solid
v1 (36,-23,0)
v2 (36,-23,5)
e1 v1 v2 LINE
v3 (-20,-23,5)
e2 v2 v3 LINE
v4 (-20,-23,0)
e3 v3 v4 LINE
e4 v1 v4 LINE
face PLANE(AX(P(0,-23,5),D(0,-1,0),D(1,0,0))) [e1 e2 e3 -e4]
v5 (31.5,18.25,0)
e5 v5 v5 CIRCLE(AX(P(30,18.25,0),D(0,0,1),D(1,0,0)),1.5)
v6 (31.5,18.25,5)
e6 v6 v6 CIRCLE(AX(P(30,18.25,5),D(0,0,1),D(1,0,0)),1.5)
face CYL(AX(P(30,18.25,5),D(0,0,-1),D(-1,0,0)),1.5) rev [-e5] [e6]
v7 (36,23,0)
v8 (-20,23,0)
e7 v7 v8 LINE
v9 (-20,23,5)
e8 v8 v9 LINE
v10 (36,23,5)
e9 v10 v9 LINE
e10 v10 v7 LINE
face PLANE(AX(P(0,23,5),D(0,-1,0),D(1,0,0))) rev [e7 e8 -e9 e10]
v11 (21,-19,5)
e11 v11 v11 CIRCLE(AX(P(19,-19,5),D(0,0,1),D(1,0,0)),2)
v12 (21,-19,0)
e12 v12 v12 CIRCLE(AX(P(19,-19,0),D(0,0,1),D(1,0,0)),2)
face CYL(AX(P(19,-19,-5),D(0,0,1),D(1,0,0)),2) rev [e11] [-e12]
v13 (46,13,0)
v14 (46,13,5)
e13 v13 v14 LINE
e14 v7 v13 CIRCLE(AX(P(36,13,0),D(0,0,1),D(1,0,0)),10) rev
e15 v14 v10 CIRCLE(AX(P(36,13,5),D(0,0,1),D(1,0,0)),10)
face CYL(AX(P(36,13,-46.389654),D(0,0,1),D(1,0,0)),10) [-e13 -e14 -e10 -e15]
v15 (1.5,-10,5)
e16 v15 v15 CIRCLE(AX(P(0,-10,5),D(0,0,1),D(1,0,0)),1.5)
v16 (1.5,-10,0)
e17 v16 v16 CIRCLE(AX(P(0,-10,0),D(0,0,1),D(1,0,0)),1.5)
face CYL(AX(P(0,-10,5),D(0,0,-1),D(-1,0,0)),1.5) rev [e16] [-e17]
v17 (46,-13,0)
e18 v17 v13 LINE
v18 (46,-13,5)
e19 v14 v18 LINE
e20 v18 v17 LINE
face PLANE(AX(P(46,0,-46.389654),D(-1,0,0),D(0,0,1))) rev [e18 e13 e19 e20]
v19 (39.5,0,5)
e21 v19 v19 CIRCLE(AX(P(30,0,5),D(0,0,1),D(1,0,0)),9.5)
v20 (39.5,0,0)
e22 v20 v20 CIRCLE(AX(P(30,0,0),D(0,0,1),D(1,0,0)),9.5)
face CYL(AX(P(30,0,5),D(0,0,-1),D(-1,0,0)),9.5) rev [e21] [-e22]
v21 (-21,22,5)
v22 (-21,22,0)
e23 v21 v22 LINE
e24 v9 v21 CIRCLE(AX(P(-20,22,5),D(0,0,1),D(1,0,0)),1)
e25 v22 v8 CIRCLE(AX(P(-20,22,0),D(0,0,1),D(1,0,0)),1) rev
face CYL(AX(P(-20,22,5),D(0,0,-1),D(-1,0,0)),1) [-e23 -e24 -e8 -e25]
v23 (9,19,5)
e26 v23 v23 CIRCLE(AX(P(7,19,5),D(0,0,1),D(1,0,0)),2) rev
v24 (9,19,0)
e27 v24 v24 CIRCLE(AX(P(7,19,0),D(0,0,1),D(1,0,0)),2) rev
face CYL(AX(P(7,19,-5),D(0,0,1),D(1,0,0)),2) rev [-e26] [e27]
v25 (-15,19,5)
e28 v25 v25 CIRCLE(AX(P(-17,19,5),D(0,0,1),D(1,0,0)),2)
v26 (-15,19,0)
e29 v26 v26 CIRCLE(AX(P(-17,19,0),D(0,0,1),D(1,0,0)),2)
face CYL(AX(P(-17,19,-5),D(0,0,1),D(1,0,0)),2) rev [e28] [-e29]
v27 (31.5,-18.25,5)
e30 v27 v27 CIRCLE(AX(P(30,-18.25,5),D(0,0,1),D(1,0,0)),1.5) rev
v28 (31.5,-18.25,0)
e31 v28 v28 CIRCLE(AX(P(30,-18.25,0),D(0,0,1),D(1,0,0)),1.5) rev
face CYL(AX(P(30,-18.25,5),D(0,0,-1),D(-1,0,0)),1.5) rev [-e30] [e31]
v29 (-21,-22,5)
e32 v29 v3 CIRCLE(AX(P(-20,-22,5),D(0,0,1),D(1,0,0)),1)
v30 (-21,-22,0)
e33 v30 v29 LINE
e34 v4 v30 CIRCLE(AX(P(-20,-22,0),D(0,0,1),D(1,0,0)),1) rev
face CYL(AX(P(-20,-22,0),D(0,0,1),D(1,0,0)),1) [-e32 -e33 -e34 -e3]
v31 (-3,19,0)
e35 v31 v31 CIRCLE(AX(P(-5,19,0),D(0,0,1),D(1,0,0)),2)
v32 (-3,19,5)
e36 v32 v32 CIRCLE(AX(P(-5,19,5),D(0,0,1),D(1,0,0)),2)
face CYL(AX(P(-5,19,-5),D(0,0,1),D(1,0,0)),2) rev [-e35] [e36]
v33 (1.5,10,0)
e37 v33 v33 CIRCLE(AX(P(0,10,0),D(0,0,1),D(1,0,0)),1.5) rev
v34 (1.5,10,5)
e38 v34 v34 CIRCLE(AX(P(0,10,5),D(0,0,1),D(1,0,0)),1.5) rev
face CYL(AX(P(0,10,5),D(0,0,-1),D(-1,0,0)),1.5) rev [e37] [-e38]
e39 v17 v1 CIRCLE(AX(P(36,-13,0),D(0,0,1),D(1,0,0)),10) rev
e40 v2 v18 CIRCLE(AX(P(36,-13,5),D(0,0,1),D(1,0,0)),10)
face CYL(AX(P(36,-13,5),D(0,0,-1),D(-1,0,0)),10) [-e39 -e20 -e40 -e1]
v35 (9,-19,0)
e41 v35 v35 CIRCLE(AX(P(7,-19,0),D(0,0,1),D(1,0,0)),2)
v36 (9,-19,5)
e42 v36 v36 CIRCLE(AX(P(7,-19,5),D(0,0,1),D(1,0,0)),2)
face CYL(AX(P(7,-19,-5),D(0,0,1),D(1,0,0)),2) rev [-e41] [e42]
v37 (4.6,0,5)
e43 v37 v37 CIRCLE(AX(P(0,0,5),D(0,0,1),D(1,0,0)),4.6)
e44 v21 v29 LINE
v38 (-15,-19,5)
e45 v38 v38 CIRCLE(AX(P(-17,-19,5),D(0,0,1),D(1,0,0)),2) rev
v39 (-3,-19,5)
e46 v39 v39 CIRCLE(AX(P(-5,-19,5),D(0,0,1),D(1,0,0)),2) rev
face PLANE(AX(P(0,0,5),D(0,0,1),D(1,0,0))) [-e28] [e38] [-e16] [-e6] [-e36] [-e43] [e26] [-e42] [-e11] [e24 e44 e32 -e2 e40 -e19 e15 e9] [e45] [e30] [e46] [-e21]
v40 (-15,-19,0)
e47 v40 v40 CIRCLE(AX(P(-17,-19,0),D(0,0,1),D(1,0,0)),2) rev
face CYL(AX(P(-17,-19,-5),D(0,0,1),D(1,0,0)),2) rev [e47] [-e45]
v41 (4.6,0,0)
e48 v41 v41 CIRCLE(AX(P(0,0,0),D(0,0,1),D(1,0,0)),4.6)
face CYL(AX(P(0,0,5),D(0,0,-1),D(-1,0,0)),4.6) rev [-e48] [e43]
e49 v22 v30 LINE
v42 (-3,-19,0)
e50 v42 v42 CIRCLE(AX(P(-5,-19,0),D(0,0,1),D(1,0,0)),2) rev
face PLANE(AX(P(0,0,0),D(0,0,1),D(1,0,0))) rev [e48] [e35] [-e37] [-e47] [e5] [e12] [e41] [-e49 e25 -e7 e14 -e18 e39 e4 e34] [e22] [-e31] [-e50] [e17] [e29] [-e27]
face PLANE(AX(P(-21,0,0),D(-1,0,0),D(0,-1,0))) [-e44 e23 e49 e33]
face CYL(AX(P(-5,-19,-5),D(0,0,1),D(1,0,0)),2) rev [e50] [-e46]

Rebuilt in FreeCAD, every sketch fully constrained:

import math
import FreeCAD as App
import Part
import Sketcher


def edges_at(feature, points):
    """Names of the edges that pass closest to the given points."""
    edges = feature.Shape.Edges
    near = lambda p: min(range(len(edges)), key=lambda i: edges[i].distToShape(Part.Vertex(*p))[0])
    return sorted({f"Edge{near(p) + 1}" for p in points})

doc = App.newDocument("Part")
body = doc.addObject("PartDesign::Body", "Body")

# Sketch on XY plane
sketch1 = doc.addObject("Sketcher::SketchObject", "Sketch")
body.addObject(sketch1)
sketch1.AttachmentSupport = (doc.XY_Plane, [""])
sketch1.MapMode = "FlatFace"
sketch1.addGeometry(Part.LineSegment(App.Vector(-25, 23, 0), App.Vector(-25, -23, 0)), False)
sketch1.addGeometry(Part.LineSegment(App.Vector(-25, -23, 0), App.Vector(40, -23, 0)), False)
sketch1.addGeometry(Part.LineSegment(App.Vector(40, -23, 0), App.Vector(40, 23, 0)), False)
sketch1.addGeometry(Part.LineSegment(App.Vector(40, 23, 0), App.Vector(-25, 23, 0)), False)
sketch1.addGeometry(Part.ArcOfCircle(Part.Circle(App.Vector(0, -10, 0), App.Vector(0, 0, 1), 1.5), math.radians(0), math.radians(90)), False)
sketch1.addGeometry(Part.ArcOfCircle(Part.Circle(App.Vector(0, -10, 0), App.Vector(0, 0, 1), 1.5), math.radians(90), math.radians(360)), False)
sketch1.addGeometry(Part.ArcOfCircle(Part.Circle(App.Vector(0, 0, 0), App.Vector(0, 0, 1), 4.6), math.radians(0), math.radians(270)), False)
sketch1.addGeometry(Part.ArcOfCircle(Part.Circle(App.Vector(0, 0, 0), App.Vector(0, 0, 1), 4.6), math.radians(-90), math.radians(0)), False)
sketch1.addGeometry(Part.Circle(App.Vector(30, -18.25, 0), App.Vector(0, 0, 1), 1.5), False)
sketch1.addGeometry(Part.Circle(App.Vector(0, 10, 0), App.Vector(0, 0, 1), 1.5), False)
sketch1.addGeometry(Part.ArcOfCircle(Part.Circle(App.Vector(30, 0, 0), App.Vector(0, 0, 1), 9.5), math.radians(0), math.radians(90)), False)
sketch1.addGeometry(Part.ArcOfCircle(Part.Circle(App.Vector(30, 0, 0), App.Vector(0, 0, 1), 9.5), math.radians(90), math.radians(360)), False)
sketch1.addGeometry(Part.ArcOfCircle(Part.Circle(App.Vector(30, 18.25, 0), App.Vector(0, 0, 1), 1.5), math.radians(0), math.radians(270)), False)
sketch1.addGeometry(Part.ArcOfCircle(Part.Circle(App.Vector(30, 18.25, 0), App.Vector(0, 0, 1), 1.5), math.radians(-90), math.radians(0)), False)
sketch1.addConstraint(Sketcher.Constraint("Coincident", 0, 2, 1, 1))
sketch1.addConstraint(Sketcher.Constraint("Coincident", 1, 2, 2, 1))
sketch1.addConstraint(Sketcher.Constraint("Coincident", 2, 2, 3, 1))
sketch1.addConstraint(Sketcher.Constraint("Coincident", 3, 2, 0, 1))
sketch1.addConstraint(Sketcher.Constraint("Tangent", 4, 1, 5, 2))
sketch1.addConstraint(Sketcher.Constraint("Coincident", 5, 1, 4, 2))
sketch1.addConstraint(Sketcher.Constraint("Tangent", 6, 1, 7, 2))
sketch1.addConstraint(Sketcher.Constraint("Coincident", 7, 1, 6, 2))
sketch1.addConstraint(Sketcher.Constraint("Tangent", 10, 1, 11, 2))
sketch1.addConstraint(Sketcher.Constraint("Coincident", 11, 1, 10, 2))
sketch1.addConstraint(Sketcher.Constraint("Tangent", 12, 1, 13, 2))
sketch1.addConstraint(Sketcher.Constraint("Coincident", 13, 1, 12, 2))
sketch1.addConstraint(Sketcher.Constraint("Vertical", 0))
sketch1.addConstraint(Sketcher.Constraint("Horizontal", 1))
sketch1.addConstraint(Sketcher.Constraint("Vertical", 2))
sketch1.addConstraint(Sketcher.Constraint("Horizontal", 3))
sketch1.addConstraint(Sketcher.Constraint("Coincident", 6, 3, -1, 1))
sketch1.addConstraint(Sketcher.Constraint("Equal", 5, 8))
sketch1.addConstraint(Sketcher.Constraint("Equal", 8, 9))
sketch1.addConstraint(Sketcher.Constraint("Equal", 9, 12))
sketch1.addConstraint(Sketcher.Constraint("Symmetric", 4, 3, 9, 3, -1, 1))
sketch1.addConstraint(Sketcher.Constraint("Symmetric", 8, 3, 12, 3, -1))
sketch1.addConstraint(Sketcher.Constraint("PointOnObject", 4, 3, -2))
sketch1.addConstraint(Sketcher.Constraint("PointOnObject", 10, 3, -1))
sketch1.addConstraint(Sketcher.Constraint("PointOnObject", 5, 1, -2))
sketch1.addConstraint(Sketcher.Constraint("PointOnObject", 6, 1, -1))
sketch1.addConstraint(Sketcher.Constraint("PointOnObject", 7, 1, -2))
sketch1.addConstraint(Sketcher.Constraint("PointOnObject", 10, 1, -1))
sketch1.addConstraint(Sketcher.Constraint("Horizontal", 5, 3, 4, 1))
sketch1.addConstraint(Sketcher.Constraint("Horizontal", 13, 3, 12, 1))
sketch1.addConstraint(Sketcher.Constraint("Vertical", 8, 3, 10, 3))
sketch1.addConstraint(Sketcher.Constraint("Vertical", 13, 3, 11, 1))
sketch1.addConstraint(Sketcher.Constraint("Vertical", 11, 1, 13, 1))
sketch1.addConstraint(Sketcher.Constraint("Diameter", 8, 3.0))
sketch1.addConstraint(Sketcher.Constraint("Radius", 6, 4.6))
sketch1.addConstraint(Sketcher.Constraint("Radius", 10, 9.5))
sketch1.addConstraint(Sketcher.Constraint("DistanceX", 1, 1, 1, 2, 65.0))
sketch1.addConstraint(Sketcher.Constraint("DistanceY", 0, 2, 0, 1, 46.0))
sketch1.addConstraint(Sketcher.Constraint("DistanceY", 4, 3, -1, 1, 10.0))
sketch1.addConstraint(Sketcher.Constraint("DistanceX", -1, 1, 8, 3, 30.0))
sketch1.addConstraint(Sketcher.Constraint("DistanceX", 0, 2, -1, 1, 25.0))
sketch1.addConstraint(Sketcher.Constraint("DistanceY", 0, 2, -1, 1, 23.0))
sketch1.addConstraint(Sketcher.Constraint("DistanceY", 8, 3, -1, 1, 18.25))
pad1 = doc.addObject("PartDesign::Pad", "Pad")
body.addObject(pad1)
pad1.Profile = sketch1
pad1.Length = 5

# Sketch on XY plane
sketch2 = doc.addObject("Sketcher::SketchObject", "Sketch001")
body.addObject(sketch2)
sketch2.AttachmentSupport = (doc.XY_Plane, [""])
sketch2.MapMode = "FlatFace"
sketch2.AttachmentOffset = App.Placement(App.Vector(0, 0, 5), App.Rotation())
sketch2.addGeometry(Part.Circle(App.Vector(7, 19, 0), App.Vector(0, 0, 1), 2), False)
sketch2.addGeometry(Part.Circle(App.Vector(-5, -19, 0), App.Vector(0, 0, 1), 2), False)
sketch2.addGeometry(Part.Circle(App.Vector(-17, 19, 0), App.Vector(0, 0, 1), 2), False)
sketch2.addGeometry(Part.Circle(App.Vector(-5, 19, 0), App.Vector(0, 0, 1), 2), False)
sketch2.addGeometry(Part.Circle(App.Vector(7, -19, 0), App.Vector(0, 0, 1), 2), False)
sketch2.addGeometry(Part.Circle(App.Vector(-17, -19, 0), App.Vector(0, 0, 1), 2), False)
sketch2.addConstraint(Sketcher.Constraint("Equal", 0, 1))
sketch2.addConstraint(Sketcher.Constraint("Equal", 1, 2))
sketch2.addConstraint(Sketcher.Constraint("Equal", 2, 3))
sketch2.addConstraint(Sketcher.Constraint("Equal", 3, 4))
sketch2.addConstraint(Sketcher.Constraint("Equal", 4, 5))
sketch2.addConstraint(Sketcher.Constraint("Symmetric", 1, 3, 3, 3, -1))
sketch2.addConstraint(Sketcher.Constraint("Symmetric", 0, 3, 4, 3, -1))
sketch2.addConstraint(Sketcher.Constraint("Symmetric", 2, 3, 5, 3, -1))
sketch2.addConstraint(Sketcher.Constraint("Horizontal", 0, 3, 2, 3))
sketch2.addConstraint(Sketcher.Constraint("Horizontal", 2, 3, 3, 3))
sketch2.addConstraint(Sketcher.Constraint("Diameter", 0, 4.0))
sketch2.addConstraint(Sketcher.Constraint("DistanceX", -1, 1, 0, 3, 7.0))
sketch2.addConstraint(Sketcher.Constraint("DistanceY", -1, 1, 0, 3, 19.0))
sketch2.addConstraint(Sketcher.Constraint("DistanceX", 1, 3, -1, 1, 5.0))
sketch2.addConstraint(Sketcher.Constraint("DistanceX", 2, 3, -1, 1, 17.0))
pocket1 = doc.addObject("PartDesign::Pocket", "Pocket")
body.addObject(pocket1)
pocket1.Profile = sketch2
pocket1.Length = 10

# Sketch on XY plane
sketch3 = doc.addObject("Sketcher::SketchObject", "Sketch002")
body.addObject(sketch3)
sketch3.AttachmentSupport = (doc.XY_Plane, [""])
sketch3.MapMode = "FlatFace"
sketch3.AttachmentOffset = App.Placement(App.Vector(0, 0, 5), App.Rotation())
sketch3.addGeometry(Part.LineSegment(App.Vector(-25, 23, 0), App.Vector(-25, -23, 0)), False)
sketch3.addGeometry(Part.LineSegment(App.Vector(-25, -23, 0), App.Vector(-21, -23, 0)), False)
sketch3.addGeometry(Part.LineSegment(App.Vector(-21, -23, 0), App.Vector(-21, 23, 0)), False)
sketch3.addGeometry(Part.LineSegment(App.Vector(-21, 23, 0), App.Vector(-25, 23, 0)), False)
sketch3.addConstraint(Sketcher.Constraint("Coincident", 0, 2, 1, 1))
sketch3.addConstraint(Sketcher.Constraint("Coincident", 1, 2, 2, 1))
sketch3.addConstraint(Sketcher.Constraint("Coincident", 2, 2, 3, 1))
sketch3.addConstraint(Sketcher.Constraint("Coincident", 3, 2, 0, 1))
sketch3.addConstraint(Sketcher.Constraint("Vertical", 0))
sketch3.addConstraint(Sketcher.Constraint("Horizontal", 1))
sketch3.addConstraint(Sketcher.Constraint("Vertical", 2))
sketch3.addConstraint(Sketcher.Constraint("Horizontal", 3))
sketch3.addConstraint(Sketcher.Constraint("DistanceX", 1, 1, 1, 2, 4.0))
sketch3.addConstraint(Sketcher.Constraint("DistanceY", 0, 2, 0, 1, 46.0))
sketch3.addConstraint(Sketcher.Constraint("DistanceX", 0, 2, -1, 1, 25.0))
sketch3.addConstraint(Sketcher.Constraint("DistanceY", 0, 2, -1, 1, 23.0))
pocket2 = doc.addObject("PartDesign::Pocket", "Pocket001")
body.addObject(pocket2)
pocket2.Profile = sketch3
pocket2.Type = "ThroughAll"

# Sketch on XY plane
sketch4 = doc.addObject("Sketcher::SketchObject", "Sketch003")
body.addObject(sketch4)
sketch4.AttachmentSupport = (doc.XY_Plane, [""])
sketch4.MapMode = "FlatFace"
sketch4.AttachmentOffset = App.Placement(App.Vector(0, 0, 5), App.Rotation())
sketch4.addGeometry(Part.LineSegment(App.Vector(40, 23, 0), App.Vector(40, -23, 0)), False)
sketch4.addGeometry(Part.LineSegment(App.Vector(40, -23, 0), App.Vector(46, -23, 0)), False)
sketch4.addGeometry(Part.LineSegment(App.Vector(46, -23, 0), App.Vector(46, 23, 0)), False)
sketch4.addGeometry(Part.LineSegment(App.Vector(46, 23, 0), App.Vector(40, 23, 0)), False)
sketch4.addConstraint(Sketcher.Constraint("Coincident", 0, 2, 1, 1))
sketch4.addConstraint(Sketcher.Constraint("Coincident", 1, 2, 2, 1))
sketch4.addConstraint(Sketcher.Constraint("Coincident", 2, 2, 3, 1))
sketch4.addConstraint(Sketcher.Constraint("Coincident", 3, 2, 0, 1))
sketch4.addConstraint(Sketcher.Constraint("Vertical", 0))
sketch4.addConstraint(Sketcher.Constraint("Horizontal", 1))
sketch4.addConstraint(Sketcher.Constraint("Vertical", 2))
sketch4.addConstraint(Sketcher.Constraint("Horizontal", 3))
sketch4.addConstraint(Sketcher.Constraint("DistanceX", 1, 1, 1, 2, 6.0))
sketch4.addConstraint(Sketcher.Constraint("DistanceY", 0, 2, 0, 1, 46.0))
sketch4.addConstraint(Sketcher.Constraint("DistanceX", -1, 1, 0, 2, 40.0))
sketch4.addConstraint(Sketcher.Constraint("DistanceY", 0, 2, -1, 1, 23.0))
pad2 = doc.addObject("PartDesign::Pad", "Pad001")
body.addObject(pad2)
pad2.Profile = sketch4
pad2.Length = 5
pad2.Reversed = True
doc.recompute()

fillet = doc.addObject("PartDesign::Fillet", "Fillet")
body.addObject(fillet)
fillet.Base = (pad2, edges_at(pad2, [(46, -23, 2.5), (46, 23, 2.5)]))
fillet.Radius = 10
doc.recompute()

fillet2 = doc.addObject("PartDesign::Fillet", "Fillet001")
body.addObject(fillet2)
fillet2.Base = (fillet, edges_at(fillet, [(-21, 23, 2.5), (-21, -23, 2.5)]))
fillet2.Radius = 1

# Sketch on XY plane
sketch5 = doc.addObject("Sketcher::SketchObject", "Sketch004")
body.addObject(sketch5)
sketch5.AttachmentSupport = (doc.XY_Plane, [""])
sketch5.MapMode = "FlatFace"
sketch5.AttachmentOffset = App.Placement(App.Vector(0, 0, 5), App.Rotation())
sketch5.addGeometry(Part.Circle(App.Vector(19, -19, 0), App.Vector(0, 0, 1), 2), False)
sketch5.addConstraint(Sketcher.Constraint("Diameter", 0, 4.0))
sketch5.addConstraint(Sketcher.Constraint("DistanceX", -1, 1, 0, 3, 19.0))
sketch5.addConstraint(Sketcher.Constraint("DistanceY", 0, 3, -1, 1, 19.0))
pocket3 = doc.addObject("PartDesign::Pocket", "Pocket002")
body.addObject(pocket3)
pocket3.Profile = sketch5
pocket3.Length = 10

doc.recompute()
